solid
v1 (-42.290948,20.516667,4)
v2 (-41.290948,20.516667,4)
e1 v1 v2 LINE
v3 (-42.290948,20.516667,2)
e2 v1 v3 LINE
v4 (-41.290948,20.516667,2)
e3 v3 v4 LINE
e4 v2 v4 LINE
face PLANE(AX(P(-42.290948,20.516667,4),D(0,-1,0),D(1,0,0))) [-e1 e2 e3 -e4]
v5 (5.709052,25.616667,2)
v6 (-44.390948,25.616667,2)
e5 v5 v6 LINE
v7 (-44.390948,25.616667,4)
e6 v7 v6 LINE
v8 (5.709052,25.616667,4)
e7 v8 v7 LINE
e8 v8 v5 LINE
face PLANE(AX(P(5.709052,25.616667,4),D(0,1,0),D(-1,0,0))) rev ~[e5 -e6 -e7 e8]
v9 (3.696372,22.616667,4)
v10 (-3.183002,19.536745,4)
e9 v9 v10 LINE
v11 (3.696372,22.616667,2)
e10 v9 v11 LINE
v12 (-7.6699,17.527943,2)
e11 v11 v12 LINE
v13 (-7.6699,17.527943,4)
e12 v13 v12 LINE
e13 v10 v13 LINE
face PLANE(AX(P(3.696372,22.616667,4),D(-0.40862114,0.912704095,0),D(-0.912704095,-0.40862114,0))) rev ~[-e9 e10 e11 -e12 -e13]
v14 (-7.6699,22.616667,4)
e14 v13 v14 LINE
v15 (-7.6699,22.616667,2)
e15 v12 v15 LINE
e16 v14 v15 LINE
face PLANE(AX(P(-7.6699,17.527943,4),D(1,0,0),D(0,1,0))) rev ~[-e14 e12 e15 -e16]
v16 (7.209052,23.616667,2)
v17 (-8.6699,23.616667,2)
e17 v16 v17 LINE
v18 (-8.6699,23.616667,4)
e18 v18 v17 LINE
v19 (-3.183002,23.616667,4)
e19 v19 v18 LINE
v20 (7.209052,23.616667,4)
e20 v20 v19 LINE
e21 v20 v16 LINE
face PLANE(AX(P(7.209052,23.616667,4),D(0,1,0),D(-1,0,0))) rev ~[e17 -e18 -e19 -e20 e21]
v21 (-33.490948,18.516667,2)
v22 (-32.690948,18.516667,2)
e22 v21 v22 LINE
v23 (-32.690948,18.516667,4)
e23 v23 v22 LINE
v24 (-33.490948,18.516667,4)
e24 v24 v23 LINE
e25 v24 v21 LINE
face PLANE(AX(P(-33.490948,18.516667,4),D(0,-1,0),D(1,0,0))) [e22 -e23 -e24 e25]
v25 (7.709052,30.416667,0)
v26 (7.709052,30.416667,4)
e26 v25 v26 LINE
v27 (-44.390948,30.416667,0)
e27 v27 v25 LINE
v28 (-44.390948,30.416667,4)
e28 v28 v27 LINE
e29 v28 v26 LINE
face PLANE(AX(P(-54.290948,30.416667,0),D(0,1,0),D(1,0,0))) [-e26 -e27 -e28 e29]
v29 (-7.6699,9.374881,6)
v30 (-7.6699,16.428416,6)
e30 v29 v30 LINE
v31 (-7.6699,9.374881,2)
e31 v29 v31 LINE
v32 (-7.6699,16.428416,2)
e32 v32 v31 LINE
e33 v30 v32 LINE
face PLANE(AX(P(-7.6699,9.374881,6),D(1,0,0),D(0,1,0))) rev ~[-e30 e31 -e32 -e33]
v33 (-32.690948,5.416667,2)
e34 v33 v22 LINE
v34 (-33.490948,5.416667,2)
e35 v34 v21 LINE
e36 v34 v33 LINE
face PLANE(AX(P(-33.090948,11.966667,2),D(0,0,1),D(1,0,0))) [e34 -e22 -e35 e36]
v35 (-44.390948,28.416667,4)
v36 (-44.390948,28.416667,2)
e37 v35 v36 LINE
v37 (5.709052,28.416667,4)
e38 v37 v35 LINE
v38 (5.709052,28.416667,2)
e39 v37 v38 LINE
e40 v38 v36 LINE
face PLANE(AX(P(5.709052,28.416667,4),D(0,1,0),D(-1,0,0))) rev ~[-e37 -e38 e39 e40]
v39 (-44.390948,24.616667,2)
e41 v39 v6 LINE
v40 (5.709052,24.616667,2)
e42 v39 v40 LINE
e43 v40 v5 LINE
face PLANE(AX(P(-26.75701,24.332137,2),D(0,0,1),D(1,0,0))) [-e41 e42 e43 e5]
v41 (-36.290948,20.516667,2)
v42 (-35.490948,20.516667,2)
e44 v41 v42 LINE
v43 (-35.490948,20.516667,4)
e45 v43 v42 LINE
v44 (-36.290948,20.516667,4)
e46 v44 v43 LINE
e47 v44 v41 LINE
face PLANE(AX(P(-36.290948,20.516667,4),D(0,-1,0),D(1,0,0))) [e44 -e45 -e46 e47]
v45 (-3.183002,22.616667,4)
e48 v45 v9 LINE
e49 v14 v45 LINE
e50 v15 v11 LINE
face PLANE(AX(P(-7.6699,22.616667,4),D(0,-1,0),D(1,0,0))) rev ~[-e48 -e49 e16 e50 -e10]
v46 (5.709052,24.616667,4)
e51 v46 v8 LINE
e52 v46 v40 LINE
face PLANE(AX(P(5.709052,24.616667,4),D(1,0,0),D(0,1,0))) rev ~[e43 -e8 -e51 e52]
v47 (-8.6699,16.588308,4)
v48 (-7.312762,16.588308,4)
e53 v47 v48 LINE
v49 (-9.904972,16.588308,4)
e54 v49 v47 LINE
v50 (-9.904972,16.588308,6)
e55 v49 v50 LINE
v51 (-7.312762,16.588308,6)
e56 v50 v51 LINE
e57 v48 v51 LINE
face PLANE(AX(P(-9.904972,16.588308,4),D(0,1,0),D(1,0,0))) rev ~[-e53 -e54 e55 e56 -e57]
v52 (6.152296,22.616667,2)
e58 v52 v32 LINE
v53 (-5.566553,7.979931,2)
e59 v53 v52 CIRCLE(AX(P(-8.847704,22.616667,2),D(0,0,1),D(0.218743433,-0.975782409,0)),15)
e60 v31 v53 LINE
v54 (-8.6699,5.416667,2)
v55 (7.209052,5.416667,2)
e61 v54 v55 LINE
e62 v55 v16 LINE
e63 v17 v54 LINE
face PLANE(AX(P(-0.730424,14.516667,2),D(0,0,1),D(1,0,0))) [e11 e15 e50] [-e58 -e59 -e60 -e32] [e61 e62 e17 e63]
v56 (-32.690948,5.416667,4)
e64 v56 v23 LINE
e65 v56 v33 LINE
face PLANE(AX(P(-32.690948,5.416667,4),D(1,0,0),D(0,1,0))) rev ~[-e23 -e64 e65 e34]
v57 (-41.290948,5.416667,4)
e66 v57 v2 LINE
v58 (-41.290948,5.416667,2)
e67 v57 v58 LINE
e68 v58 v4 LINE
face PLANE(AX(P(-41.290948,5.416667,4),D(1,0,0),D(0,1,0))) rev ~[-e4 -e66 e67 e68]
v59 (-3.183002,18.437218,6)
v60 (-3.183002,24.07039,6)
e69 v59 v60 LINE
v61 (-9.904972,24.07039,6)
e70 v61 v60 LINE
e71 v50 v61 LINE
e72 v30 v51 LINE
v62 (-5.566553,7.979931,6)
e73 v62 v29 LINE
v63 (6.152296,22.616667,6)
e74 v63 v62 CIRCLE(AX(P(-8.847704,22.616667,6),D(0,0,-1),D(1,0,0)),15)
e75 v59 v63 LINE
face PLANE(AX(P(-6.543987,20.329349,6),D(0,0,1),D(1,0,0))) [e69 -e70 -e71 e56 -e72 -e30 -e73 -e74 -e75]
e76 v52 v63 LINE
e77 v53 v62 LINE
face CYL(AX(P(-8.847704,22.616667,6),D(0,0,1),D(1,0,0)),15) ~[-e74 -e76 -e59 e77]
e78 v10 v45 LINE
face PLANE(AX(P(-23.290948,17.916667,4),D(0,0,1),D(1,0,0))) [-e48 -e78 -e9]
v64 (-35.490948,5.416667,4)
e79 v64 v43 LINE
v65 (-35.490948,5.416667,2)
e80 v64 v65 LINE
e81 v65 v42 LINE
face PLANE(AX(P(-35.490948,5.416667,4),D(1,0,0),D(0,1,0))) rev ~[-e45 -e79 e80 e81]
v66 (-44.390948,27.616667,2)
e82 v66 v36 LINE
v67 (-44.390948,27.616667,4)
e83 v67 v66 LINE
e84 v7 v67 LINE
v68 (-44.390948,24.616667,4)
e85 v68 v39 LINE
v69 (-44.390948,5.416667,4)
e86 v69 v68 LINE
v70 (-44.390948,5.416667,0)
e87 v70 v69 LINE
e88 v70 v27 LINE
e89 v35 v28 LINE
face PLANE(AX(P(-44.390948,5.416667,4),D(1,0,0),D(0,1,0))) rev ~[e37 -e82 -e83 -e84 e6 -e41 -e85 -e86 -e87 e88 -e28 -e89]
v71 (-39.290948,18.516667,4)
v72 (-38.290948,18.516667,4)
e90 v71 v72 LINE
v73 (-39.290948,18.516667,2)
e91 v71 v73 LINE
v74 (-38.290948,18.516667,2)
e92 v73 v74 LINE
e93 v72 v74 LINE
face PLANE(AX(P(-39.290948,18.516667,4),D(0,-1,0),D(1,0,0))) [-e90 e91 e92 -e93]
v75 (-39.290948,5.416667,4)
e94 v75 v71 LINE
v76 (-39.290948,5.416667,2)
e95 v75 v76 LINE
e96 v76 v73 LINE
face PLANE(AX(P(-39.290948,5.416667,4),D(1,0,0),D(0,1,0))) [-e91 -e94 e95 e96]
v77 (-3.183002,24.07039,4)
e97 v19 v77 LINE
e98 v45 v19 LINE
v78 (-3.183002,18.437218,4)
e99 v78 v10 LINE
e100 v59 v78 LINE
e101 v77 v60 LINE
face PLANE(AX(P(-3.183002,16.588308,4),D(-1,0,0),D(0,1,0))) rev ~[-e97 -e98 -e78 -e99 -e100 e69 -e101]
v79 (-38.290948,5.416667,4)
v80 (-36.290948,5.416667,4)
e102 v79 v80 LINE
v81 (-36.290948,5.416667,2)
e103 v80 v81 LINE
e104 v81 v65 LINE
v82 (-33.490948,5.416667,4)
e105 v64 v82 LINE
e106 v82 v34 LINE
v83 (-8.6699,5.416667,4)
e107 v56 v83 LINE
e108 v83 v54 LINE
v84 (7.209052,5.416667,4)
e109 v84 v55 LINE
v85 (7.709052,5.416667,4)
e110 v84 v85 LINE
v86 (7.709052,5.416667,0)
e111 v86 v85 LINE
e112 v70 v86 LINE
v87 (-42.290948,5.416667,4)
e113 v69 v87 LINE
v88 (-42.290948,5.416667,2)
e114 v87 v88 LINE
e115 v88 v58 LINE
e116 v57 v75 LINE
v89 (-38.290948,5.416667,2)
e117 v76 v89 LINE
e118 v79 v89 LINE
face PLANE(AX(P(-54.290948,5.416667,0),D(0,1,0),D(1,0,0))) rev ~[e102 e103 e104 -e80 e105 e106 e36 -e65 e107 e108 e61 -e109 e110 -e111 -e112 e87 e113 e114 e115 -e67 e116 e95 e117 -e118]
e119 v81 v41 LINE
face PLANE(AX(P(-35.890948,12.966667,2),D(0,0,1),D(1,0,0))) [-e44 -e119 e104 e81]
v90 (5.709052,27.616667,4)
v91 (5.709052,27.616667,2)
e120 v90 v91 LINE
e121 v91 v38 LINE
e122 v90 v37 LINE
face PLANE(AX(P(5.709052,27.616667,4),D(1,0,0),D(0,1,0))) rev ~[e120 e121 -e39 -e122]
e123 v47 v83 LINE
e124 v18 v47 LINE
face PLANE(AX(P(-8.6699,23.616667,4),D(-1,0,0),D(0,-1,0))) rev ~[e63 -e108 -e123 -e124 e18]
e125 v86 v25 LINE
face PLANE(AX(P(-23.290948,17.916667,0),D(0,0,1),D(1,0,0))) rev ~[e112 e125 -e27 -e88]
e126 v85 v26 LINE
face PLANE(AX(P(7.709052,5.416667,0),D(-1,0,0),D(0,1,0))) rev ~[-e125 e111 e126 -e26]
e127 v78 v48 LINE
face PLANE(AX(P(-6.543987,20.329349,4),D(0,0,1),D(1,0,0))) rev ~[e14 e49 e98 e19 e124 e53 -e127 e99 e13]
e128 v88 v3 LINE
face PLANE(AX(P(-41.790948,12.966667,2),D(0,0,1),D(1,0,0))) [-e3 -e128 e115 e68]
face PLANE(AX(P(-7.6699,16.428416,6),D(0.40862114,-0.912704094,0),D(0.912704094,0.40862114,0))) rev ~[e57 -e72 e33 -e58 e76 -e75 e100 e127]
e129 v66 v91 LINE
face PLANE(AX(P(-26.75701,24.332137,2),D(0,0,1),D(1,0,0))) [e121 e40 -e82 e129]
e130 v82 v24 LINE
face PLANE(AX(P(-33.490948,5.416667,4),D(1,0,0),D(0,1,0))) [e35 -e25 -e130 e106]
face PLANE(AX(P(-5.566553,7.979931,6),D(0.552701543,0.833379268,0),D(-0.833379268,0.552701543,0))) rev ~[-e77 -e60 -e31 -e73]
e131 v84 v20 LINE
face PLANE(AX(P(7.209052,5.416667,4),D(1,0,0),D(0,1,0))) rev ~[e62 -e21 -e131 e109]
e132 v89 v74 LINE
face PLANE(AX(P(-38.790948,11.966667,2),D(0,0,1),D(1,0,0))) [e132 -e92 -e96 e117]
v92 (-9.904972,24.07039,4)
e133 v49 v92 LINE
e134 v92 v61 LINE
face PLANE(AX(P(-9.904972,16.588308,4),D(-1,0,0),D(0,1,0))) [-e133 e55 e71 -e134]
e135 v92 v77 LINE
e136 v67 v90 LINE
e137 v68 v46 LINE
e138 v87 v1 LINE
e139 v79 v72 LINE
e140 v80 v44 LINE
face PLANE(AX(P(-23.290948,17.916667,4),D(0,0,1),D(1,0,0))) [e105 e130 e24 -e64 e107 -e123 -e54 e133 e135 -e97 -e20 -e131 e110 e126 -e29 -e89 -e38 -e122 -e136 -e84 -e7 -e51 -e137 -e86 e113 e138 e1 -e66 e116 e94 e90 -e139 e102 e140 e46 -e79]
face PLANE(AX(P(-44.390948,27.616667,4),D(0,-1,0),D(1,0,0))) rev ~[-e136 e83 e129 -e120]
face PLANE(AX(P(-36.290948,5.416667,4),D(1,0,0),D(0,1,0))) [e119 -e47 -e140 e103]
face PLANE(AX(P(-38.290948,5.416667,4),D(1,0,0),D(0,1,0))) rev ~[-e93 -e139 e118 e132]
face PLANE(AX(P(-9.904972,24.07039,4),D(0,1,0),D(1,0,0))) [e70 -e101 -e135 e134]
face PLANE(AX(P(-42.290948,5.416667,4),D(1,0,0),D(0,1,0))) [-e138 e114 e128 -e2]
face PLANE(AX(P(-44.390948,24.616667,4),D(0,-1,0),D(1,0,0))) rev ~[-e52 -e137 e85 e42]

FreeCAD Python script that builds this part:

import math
import FreeCAD as App
import Part
import Sketcher

V = App.Vector
Q = App.Units.Quantity


def add_polygon(sketch, points):
    """Adds a closed chain of lines whose ends are joined by coincident constraints."""
    first, n = sketch.GeometryCount, len(points)
    for a, b in zip(points, points[1:] + points[:1]):
        sketch.addGeometry(Part.LineSegment(App.Vector(*a, 0), App.Vector(*b, 0)), False)
    for i in range(n):
        sketch.addConstraint(Sketcher.Constraint("Coincident", first + i, 2, first + (i + 1) % n, 1))

doc = App.newDocument("Part")
body = doc.addObject("PartDesign::Body", "Body")

# Sketch on XY plane
sketch1 = body.newObject("Sketcher::SketchObject", "Sketch")
sketch1.AttachmentSupport = (doc.getObject("XY_Plane"), [""])
sketch1.MapMode = "FlatFace"
add_polygon(sketch1, [(-54, 30), (-54, 5), (8, 5), (8, 30)])  # lines 0-3
sketch1.addConstraint(Sketcher.Constraint("Vertical", 0))
sketch1.addConstraint(Sketcher.Constraint("Horizontal", 1))
sketch1.addConstraint(Sketcher.Constraint("Vertical", 2))
sketch1.addConstraint(Sketcher.Constraint("Horizontal", 3))
sketch1.addConstraint(Sketcher.Constraint("DistanceX", 1, 1, 1, 2, Q("62 mm")))
sketch1.addConstraint(Sketcher.Constraint("DistanceY", 0, 2, 0, 1, Q("25 mm")))
sketch1.addConstraint(Sketcher.Constraint("DistanceX", 0, 2, -1, 1, Q("54.290948 mm")))
sketch1.addConstraint(Sketcher.Constraint("DistanceY", -1, 1, 0, 2, Q("5.416667 mm")))
pad1 = body.newObject("PartDesign::Pad", "Pad")
pad1.Profile = sketch1
pad1.Length = 4

# Sketch on XY plane
sketch2 = body.newObject("Sketcher::SketchObject", "Sketch001")
sketch2.AttachmentSupport = (doc.getObject("XY_Plane"), [""])
sketch2.MapMode = "FlatFace"
sketch2.AttachmentOffset = App.Placement(V(0, 0, 4), App.Rotation())
add_polygon(sketch2, [(5.7, 25.6), (-44.4, 25.6), (-44.4, 27.6), (5.7, 27.6), (5.7, 28.4), (-44.4, 28.4), (-44.4, 30.4), (-54.3, 30.4), (-54.3, 5.4), (-44.4, 5.4), (-44.4, 24.6), (5.7, 24.6)])  # lines 0-11
add_polygon(sketch2, [(7.2, 23.6), (-8.7, 23.6), (-8.7, 5.4), (7.2, 5.4)])  # lines 12-15
sketch2.addGeometry(Part.LineSegment(V(-7.7, 16.4, 0), V(6.2, 22.6, 0)), False)  # 16
sketch2.addGeometry(Part.ArcOfCircle(Part.Circle(V(-8.8, 22.6, 0), V(0, 0, 1), 15), math.radians(-77), math.radians(0)), False)  # 17
sketch2.addGeometry(Part.LineSegment(V(-5.6, 8, 0), V(-7.7, 9.4, 0)), False)  # 18
sketch2.addGeometry(Part.LineSegment(V(-7.7, 9.4, 0), V(-7.7, 16.4, 0)), False)  # 19
add_polygon(sketch2, [(-7.7, 17.5), (-7.7, 22.6), (3.7, 22.6)])  # lines 20-22
add_polygon(sketch2, [(-42.3, 20.5), (-42.3, 5.4), (-41.3, 5.4), (-41.3, 20.5)])  # lines 23-26
add_polygon(sketch2, [(-39.3, 18.5), (-39.3, 5.4), (-38.3, 5.4), (-38.3, 18.5)])  # lines 27-30
add_polygon(sketch2, [(-36.3, 20.5), (-36.3, 5.4), (-35.5, 5.4), (-35.5, 20.5)])  # lines 31-34
add_polygon(sketch2, [(-33.5, 18.5), (-33.5, 5.4), (-32.7, 5.4), (-32.7, 18.5)])  # lines 35-38
sketch2.addConstraint(Sketcher.Constraint("Coincident", 16, 2, 17, 2))
sketch2.addConstraint(Sketcher.Constraint("Coincident", 17, 1, 18, 1))
sketch2.addConstraint(Sketcher.Constraint("Coincident", 18, 2, 19, 1))
sketch2.addConstraint(Sketcher.Constraint("Coincident", 19, 2, 16, 1))
sketch2.addConstraint(Sketcher.Constraint("Horizontal", 0))
sketch2.addConstraint(Sketcher.Constraint("Vertical", 1))
sketch2.addConstraint(Sketcher.Constraint("Horizontal", 2))
sketch2.addConstraint(Sketcher.Constraint("Vertical", 3))
sketch2.addConstraint(Sketcher.Constraint("Horizontal", 4))
sketch2.addConstraint(Sketcher.Constraint("Vertical", 5))
sketch2.addConstraint(Sketcher.Constraint("Horizontal", 6))
sketch2.addConstraint(Sketcher.Constraint("Vertical", 7))
sketch2.addConstraint(Sketcher.Constraint("Horizontal", 8))
sketch2.addConstraint(Sketcher.Constraint("Vertical", 9))
sketch2.addConstraint(Sketcher.Constraint("Horizontal", 10))
sketch2.addConstraint(Sketcher.Constraint("Vertical", 11))
sketch2.addConstraint(Sketcher.Constraint("Horizontal", 12))
sketch2.addConstraint(Sketcher.Constraint("Vertical", 13))
sketch2.addConstraint(Sketcher.Constraint("Horizontal", 14))
sketch2.addConstraint(Sketcher.Constraint("Vertical", 15))
sketch2.addConstraint(Sketcher.Constraint("Vertical", 19))
sketch2.addConstraint(Sketcher.Constraint("Vertical", 20))
sketch2.addConstraint(Sketcher.Constraint("Horizontal", 21))
sketch2.addConstraint(Sketcher.Constraint("Vertical", 23))
sketch2.addConstraint(Sketcher.Constraint("Horizontal", 24))
sketch2.addConstraint(Sketcher.Constraint("Vertical", 25))
sketch2.addConstraint(Sketcher.Constraint("Horizontal", 26))
sketch2.addConstraint(Sketcher.Constraint("Vertical", 27))
sketch2.addConstraint(Sketcher.Constraint("Horizontal", 28))
sketch2.addConstraint(Sketcher.Constraint("Vertical", 29))
sketch2.addConstraint(Sketcher.Constraint("Horizontal", 30))
sketch2.addConstraint(Sketcher.Constraint("Vertical", 31))
sketch2.addConstraint(Sketcher.Constraint("Horizontal", 32))
sketch2.addConstraint(Sketcher.Constraint("Vertical", 33))
sketch2.addConstraint(Sketcher.Constraint("Horizontal", 34))
sketch2.addConstraint(Sketcher.Constraint("Vertical", 35))
sketch2.addConstraint(Sketcher.Constraint("Horizontal", 36))
sketch2.addConstraint(Sketcher.Constraint("Vertical", 37))
sketch2.addConstraint(Sketcher.Constraint("Horizontal", 38))
sketch2.addConstraint(Sketcher.Constraint("Parallel", 16, 22))
sketch2.addConstraint(Sketcher.Constraint("Horizontal", 8, 2, 13, 2))
sketch2.addConstraint(Sketcher.Constraint("Horizontal", 17, 3, 16, 2))
sketch2.addConstraint(Sketcher.Constraint("Horizontal", 16, 2, 20, 2))
sketch2.addConstraint(Sketcher.Constraint("Horizontal", 14, 2, 23, 2))
sketch2.addConstraint(Sketcher.Constraint("Horizontal", 24, 2, 27, 2))
sketch2.addConstraint(Sketcher.Constraint("Horizontal", 28, 2, 31, 2))
sketch2.addConstraint(Sketcher.Constraint("Horizontal", 26, 2, 33, 2))
sketch2.addConstraint(Sketcher.Constraint("Horizontal", 32, 2, 35, 2))
sketch2.addConstraint(Sketcher.Constraint("Horizontal", 30, 2, 37, 2))
sketch2.addConstraint(Sketcher.Constraint("Vertical", 1, 2, 4, 2))
sketch2.addConstraint(Sketcher.Constraint("Vertical", 5, 2, 8, 2))
sketch2.addConstraint(Sketcher.Constraint("Vertical", 3, 2, 10, 2))
sketch2.addConstraint(Sketcher.Constraint("Vertical", 19, 2, 20, 2))
sketch2.addConstraint(Sketcher.Constraint("Equal", 26, 28))
sketch2.addConstraint(Sketcher.Constraint("Equal", 34, 36))
sketch2.addConstraint(Sketcher.Constraint("Equal", 38, 3))
sketch2.addConstraint(Sketcher.Constraint("Equal", 1, 5))
sketch2.addConstraint(Sketcher.Constraint("Equal", 30, 11))
sketch2.addConstraint(Sketcher.Constraint("Radius", 17, Q("15 mm")))
sketch2.addConstraint(Sketcher.Constraint("DistanceX", 24, 1, 24, 2, Q("1 mm")))
sketch2.addConstraint(Sketcher.Constraint("DistanceY", 1, 1, 1, 2, Q("2 mm")))
sketch2.addConstraint(Sketcher.Constraint("DistanceY", 7, 2, 7, 1, Q("25 mm")))
sketch2.addConstraint(Sketcher.Constraint("DistanceX", 0, 2, 0, 1, Q("50.1 mm")))
sketch2.addConstraint(Sketcher.Constraint("DistanceX", 6, 2, 6, 1, Q("9.9 mm")))
sketch2.addConstraint(Sketcher.Constraint("DistanceX", 32, 1, 32, 2, Q("0.8 mm")))
sketch2.addConstraint(Sketcher.Constraint("DistanceY", 13, 2, 13, 1, Q("18.2 mm")))
sketch2.addConstraint(Sketcher.Constraint("DistanceY", 23, 2, 23, 1, Q("15.1 mm")))
sketch2.addConstraint(Sketcher.Constraint("DistanceY", 27, 2, 27, 1, Q("13.1 mm")))
sketch2.addConstraint(Sketcher.Constraint("DistanceY", 17, 3, 0, 2, Q("3 mm")))
sketch2.addConstraint(Sketcher.Constraint("DistanceX", 13, 2, 18, 2, Q("1 mm")))
sketch2.addConstraint(Sketcher.Constraint("DistanceX", 7, 2, 23, 2, Q("12 mm")))
sketch2.addConstraint(Sketcher.Constraint("DistanceX", 24, 2, 27, 2, Q("2 mm")))
sketch2.addConstraint(Sketcher.Constraint("DistanceX", 28, 2, 31, 2, Q("2 mm")))
sketch2.addConstraint(Sketcher.Constraint("DistanceX", 32, 2, 35, 2, Q("2 mm")))
sketch2.addConstraint(Sketcher.Constraint("DistanceX", 10, 2, 14, 2, Q("1.5 mm")))
sketch2.addConstraint(Sketcher.Constraint("DistanceX", 12, 2, 12, 1, Q("15.878952 mm")))
sketch2.addConstraint(Sketcher.Constraint("DistanceX", 21, 1, 21, 2, Q("11.366272 mm")))
sketch2.addConstraint(Sketcher.Constraint("DistanceX", 12, 2, -1, 1, Q("8.6699 mm")))
sketch2.addConstraint(Sketcher.Constraint("DistanceY", 19, 1, 19, 2, Q("7.053535 mm")))
sketch2.addConstraint(Sketcher.Constraint("DistanceY", 20, 1, 20, 2, Q("5.088724 mm")))
sketch2.addConstraint(Sketcher.Constraint("DistanceY", -1, 1, 17, 1, Q("7.979931 mm")))
sketch2.addConstraint(Sketcher.Constraint("DistanceY", -1, 1, 18, 2, Q("9.374881 mm")))
sketch2.addConstraint(Sketcher.Constraint("DistanceX", 17, 3, 17, 1, Q("3.281151 mm")))
pocket1 = body.newObject("PartDesign::Pocket", "Pocket")
pocket1.Profile = sketch2
pocket1.Length = 2

# Sketch on XY plane
sketch3 = body.newObject("Sketcher::SketchObject", "Sketch002")
sketch3.AttachmentSupport = (doc.getObject("XY_Plane"), [""])
sketch3.MapMode = "FlatFace"
sketch3.AttachmentOffset = App.Placement(V(0, 0, 6), App.Rotation())
sketch3.addGeometry(Part.LineSegment(V(-7.7, 9.4, 0), V(-5.6, 8, 0)), False)
sketch3.addGeometry(Part.ArcOfCircle(Part.Circle(V(-8.8, 22.6, 0), V(0, 0, 1), 15), math.radians(-77), math.radians(0)), False)
sketch3.addGeometry(Part.LineSegment(V(6.2, 22.6, 0), V(-7.7, 16.4, 0)), False)
sketch3.addGeometry(Part.LineSegment(V(-7.7, 16.4, 0), V(-7.7, 9.4, 0)), False)
sketch3.addConstraint(Sketcher.Constraint("Coincident", 0, 2, 1, 1))
sketch3.addConstraint(Sketcher.Constraint("Coincident", 1, 2, 2, 1))
sketch3.addConstraint(Sketcher.Constraint("Coincident", 2, 2, 3, 1))
sketch3.addConstraint(Sketcher.Constraint("Coincident", 3, 2, 0, 1))
sketch3.addConstraint(Sketcher.Constraint("Vertical", 3))
sketch3.addConstraint(Sketcher.Constraint("Radius", 1, Q("15 mm")))
sketch3.addConstraint(Sketcher.Constraint("DistanceX", 2, 2, -1, 1, Q("7.6699 mm")))
sketch3.addConstraint(Sketcher.Constraint("DistanceY", 3, 2, 3, 1, Q("7.053535 mm")))
sketch3.addConstraint(Sketcher.Constraint("DistanceY", -1, 1, 0, 2, Q("7.979931 mm")))
sketch3.addConstraint(Sketcher.Constraint("DistanceY", -1, 1, 3, 2, Q("9.374881 mm")))
sketch3.addConstraint(Sketcher.Constraint("DistanceX", 1, 3, 0, 2, Q("3.281151 mm")))
sketch3.addConstraint(Sketcher.Constraint("DistanceY", 2, 2, 1, 2, Q("6.18825 mm")))
sketch3.addConstraint(Sketcher.Constraint("Distance", 0, Q("2.523877 mm")))
pad2 = body.newObject("PartDesign::Pad", "Pad001")
pad2.Profile = sketch3
pad2.Length = 2
pad2.Reversed = True

# Sketch on XY plane
sketch4 = body.newObject("Sketcher::SketchObject", "Sketch003")
sketch4.AttachmentSupport = (doc.getObject("XY_Plane"), [""])
sketch4.MapMode = "FlatFace"
sketch4.AttachmentOffset = App.Placement(V(0, 0, 4), App.Rotation())
add_polygon(sketch4, [(-10, 24), (-10, 17), (-3, 17), (-3, 24)])  # lines 0-3
sketch4.addConstraint(Sketcher.Constraint("Vertical", 0))
sketch4.addConstraint(Sketcher.Constraint("Horizontal", 1))
sketch4.addConstraint(Sketcher.Constraint("Vertical", 2))
sketch4.addConstraint(Sketcher.Constraint("Horizontal", 3))
sketch4.addConstraint(Sketcher.Constraint("DistanceX", 1, 2, -1, 1, Q("3.183002 mm")))
sketch4.addConstraint(Sketcher.Constraint("DistanceX", 1, 1, 1, 2, Q("6.72197 mm")))
sketch4.addConstraint(Sketcher.Constraint("DistanceY", 0, 2, 0, 1, Q("7.482081 mm")))
sketch4.addConstraint(Sketcher.Constraint("DistanceY", -1, 1, 0, 2, Q("16.588308 mm")))
pad3 = body.newObject("PartDesign::Pad", "Pad002")
pad3.Profile = sketch4
pad3.Length = 2

# Sketch on XY plane
sketch5 = body.newObject("Sketcher::SketchObject", "Sketch004")
sketch5.AttachmentSupport = (doc.getObject("XY_Plane"), [""])
sketch5.MapMode = "FlatFace"
sketch5.AttachmentOffset = App.Placement(V(0, 0, 2), App.Rotation())
add_polygon(sketch5, [(-54, 30), (-54, 5), (-44, 5), (-44, 30)])  # lines 0-3
sketch5.addConstraint(Sketcher.Constraint("Vertical", 0))
sketch5.addConstraint(Sketcher.Constraint("Horizontal", 1))
sketch5.addConstraint(Sketcher.Constraint("Vertical", 2))
sketch5.addConstraint(Sketcher.Constraint("Horizontal", 3))
sketch5.addConstraint(Sketcher.Constraint("DistanceY", 0, 2, 0, 1, Q("25 mm")))
sketch5.addConstraint(Sketcher.Constraint("DistanceX", 1, 1, 1, 2, Q("9.9 mm")))
sketch5.addConstraint(Sketcher.Constraint("DistanceX", 0, 2, -1, 1, Q("54.290948 mm")))
sketch5.addConstraint(Sketcher.Constraint("DistanceY", -1, 1, 0, 2, Q("5.416667 mm")))
pocket2 = body.newObject("PartDesign::Pocket", "Pocket001")
pocket2.Profile = sketch5
pocket2.Length = 2

doc.recompute()
